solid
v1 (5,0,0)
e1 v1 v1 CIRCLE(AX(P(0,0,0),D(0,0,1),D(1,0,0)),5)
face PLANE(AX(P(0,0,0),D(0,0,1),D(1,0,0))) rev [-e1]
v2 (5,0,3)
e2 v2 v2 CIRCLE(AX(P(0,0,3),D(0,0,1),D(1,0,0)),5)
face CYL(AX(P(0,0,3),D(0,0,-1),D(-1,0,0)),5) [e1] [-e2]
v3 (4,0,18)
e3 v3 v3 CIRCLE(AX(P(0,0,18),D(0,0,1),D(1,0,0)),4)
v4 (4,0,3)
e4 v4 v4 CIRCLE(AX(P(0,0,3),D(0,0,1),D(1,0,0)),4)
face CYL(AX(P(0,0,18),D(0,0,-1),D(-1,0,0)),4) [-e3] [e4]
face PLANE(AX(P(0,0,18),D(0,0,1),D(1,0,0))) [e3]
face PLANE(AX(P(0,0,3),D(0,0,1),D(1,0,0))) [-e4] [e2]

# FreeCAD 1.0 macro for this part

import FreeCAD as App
import Part
import Sketcher

V = App.Vector

doc = App.newDocument("Part")
body = doc.addObject("PartDesign::Body", "Body")

sketch1 = body.newObject("Sketcher::SketchObject", "Sketch")
sketch1.AttachmentSupport = (doc.getObject("XY_Plane"), [""])
sketch1.MapMode = "FlatFace"
sketch1.addGeometry(Part.Circle(V(0, 0, 0), V(0, 0, 1), 5), False)
sketch1.addConstraint([
    Sketcher.Constraint("Coincident", 0, 3, -1, 1),
    Sketcher.Constraint("Diameter", 0, 10.0),
])
pad1 = body.newObject("PartDesign::Pad", "Pad")
pad1.Profile = sketch1
pad1.Length = 3

sketch2 = body.newObject("Sketcher::SketchObject", "Sketch001")
sketch2.AttachmentSupport = (doc.getObject("XY_Plane"), [""])
sketch2.MapMode = "FlatFace"
sketch2.AttachmentOffset = App.Placement(V(0, 0, 3), App.Rotation())
sketch2.addGeometry(Part.Circle(V(0, 0, 0), V(0, 0, 1), 4), False)
sketch2.addConstraint([
    Sketcher.Constraint("Coincident", 0, 3, -1, 1),
    Sketcher.Constraint("Diameter", 0, 8.0),
])
pad2 = body.newObject("PartDesign::Pad", "Pad001")
pad2.Profile = sketch2
pad2.Length = 15

doc.recompute()
